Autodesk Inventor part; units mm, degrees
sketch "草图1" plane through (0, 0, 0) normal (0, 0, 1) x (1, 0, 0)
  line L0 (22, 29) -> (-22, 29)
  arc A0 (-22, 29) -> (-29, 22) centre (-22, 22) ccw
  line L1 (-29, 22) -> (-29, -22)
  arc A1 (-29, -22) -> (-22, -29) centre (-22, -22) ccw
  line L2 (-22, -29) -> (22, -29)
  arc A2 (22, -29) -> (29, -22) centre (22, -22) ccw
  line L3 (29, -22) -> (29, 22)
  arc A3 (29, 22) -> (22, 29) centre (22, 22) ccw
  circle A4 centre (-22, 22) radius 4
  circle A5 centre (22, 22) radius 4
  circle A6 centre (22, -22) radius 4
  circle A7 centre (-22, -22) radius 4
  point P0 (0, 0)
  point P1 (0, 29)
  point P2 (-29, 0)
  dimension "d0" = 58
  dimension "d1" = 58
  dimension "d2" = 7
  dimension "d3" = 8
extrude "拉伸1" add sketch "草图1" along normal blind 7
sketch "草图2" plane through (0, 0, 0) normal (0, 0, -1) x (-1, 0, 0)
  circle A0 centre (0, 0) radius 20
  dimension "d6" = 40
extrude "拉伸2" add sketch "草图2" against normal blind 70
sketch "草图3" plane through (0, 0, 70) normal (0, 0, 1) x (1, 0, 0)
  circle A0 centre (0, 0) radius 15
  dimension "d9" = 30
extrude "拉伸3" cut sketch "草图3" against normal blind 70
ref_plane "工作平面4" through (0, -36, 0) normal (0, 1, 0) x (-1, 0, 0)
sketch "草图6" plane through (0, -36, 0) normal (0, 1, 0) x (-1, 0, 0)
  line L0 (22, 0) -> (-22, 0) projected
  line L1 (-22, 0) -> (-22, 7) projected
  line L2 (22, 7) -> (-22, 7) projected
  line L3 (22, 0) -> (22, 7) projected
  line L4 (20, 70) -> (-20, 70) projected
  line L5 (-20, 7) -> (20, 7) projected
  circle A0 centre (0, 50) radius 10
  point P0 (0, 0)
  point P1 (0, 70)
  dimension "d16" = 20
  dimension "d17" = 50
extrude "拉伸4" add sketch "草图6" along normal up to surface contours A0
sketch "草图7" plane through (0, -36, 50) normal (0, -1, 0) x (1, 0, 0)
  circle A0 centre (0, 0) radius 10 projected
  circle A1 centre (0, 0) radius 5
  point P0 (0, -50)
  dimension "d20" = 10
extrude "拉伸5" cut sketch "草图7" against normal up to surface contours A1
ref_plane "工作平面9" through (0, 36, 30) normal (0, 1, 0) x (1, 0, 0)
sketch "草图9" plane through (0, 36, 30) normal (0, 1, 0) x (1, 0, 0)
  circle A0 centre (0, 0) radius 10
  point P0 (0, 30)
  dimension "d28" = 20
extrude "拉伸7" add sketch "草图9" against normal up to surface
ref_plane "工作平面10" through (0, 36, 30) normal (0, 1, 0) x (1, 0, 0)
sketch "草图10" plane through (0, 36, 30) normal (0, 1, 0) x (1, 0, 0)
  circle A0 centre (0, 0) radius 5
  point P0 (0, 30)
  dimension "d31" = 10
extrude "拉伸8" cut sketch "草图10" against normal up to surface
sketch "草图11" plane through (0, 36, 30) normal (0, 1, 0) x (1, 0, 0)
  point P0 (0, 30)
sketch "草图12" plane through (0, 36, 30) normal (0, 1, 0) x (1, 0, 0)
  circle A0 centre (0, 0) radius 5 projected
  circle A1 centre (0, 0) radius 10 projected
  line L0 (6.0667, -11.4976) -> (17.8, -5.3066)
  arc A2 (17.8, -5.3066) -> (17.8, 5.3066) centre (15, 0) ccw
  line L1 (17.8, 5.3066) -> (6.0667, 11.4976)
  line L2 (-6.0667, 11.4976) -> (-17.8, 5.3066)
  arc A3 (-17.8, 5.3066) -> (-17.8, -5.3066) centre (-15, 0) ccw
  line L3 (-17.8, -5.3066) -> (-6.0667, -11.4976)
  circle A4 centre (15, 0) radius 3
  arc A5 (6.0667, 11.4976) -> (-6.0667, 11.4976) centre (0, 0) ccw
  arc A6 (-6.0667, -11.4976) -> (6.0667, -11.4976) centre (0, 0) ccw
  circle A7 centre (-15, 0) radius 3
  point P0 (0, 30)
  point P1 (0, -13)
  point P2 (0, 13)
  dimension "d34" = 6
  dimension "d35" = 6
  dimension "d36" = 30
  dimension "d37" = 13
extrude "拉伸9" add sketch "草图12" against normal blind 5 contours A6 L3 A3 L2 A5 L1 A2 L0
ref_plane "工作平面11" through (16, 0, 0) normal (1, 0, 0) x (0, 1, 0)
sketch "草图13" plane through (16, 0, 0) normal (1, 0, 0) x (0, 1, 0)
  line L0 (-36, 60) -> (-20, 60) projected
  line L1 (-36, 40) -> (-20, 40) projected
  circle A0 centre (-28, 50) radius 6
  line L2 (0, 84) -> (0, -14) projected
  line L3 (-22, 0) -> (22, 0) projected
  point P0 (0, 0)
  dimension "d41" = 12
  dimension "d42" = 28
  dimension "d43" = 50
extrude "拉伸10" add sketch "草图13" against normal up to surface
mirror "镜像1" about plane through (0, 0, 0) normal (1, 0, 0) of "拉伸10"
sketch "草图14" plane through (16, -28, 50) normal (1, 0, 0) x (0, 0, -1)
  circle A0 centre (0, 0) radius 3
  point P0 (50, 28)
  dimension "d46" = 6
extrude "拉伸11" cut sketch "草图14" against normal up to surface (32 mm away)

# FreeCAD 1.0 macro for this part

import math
import FreeCAD as App
import Part
import Sketcher
from FreeCAD import Vector
Q = App.Units.Quantity

doc = App.newDocument("Part")
params = doc.addObject("Spreadsheet::Sheet", "Params")
for row, (alias, value) in enumerate([
    ("sketch1_diameter", "8 mm"),
    ("sketch1_radius", "7 mm"),
    ("sketch1_width", "44 mm"),
    ("pad1_length", "7 mm"),
    ("sketch2_diameter", "40 mm"),
    ("pad2_length", "70 mm"),
    ("sketch3_diameter", "30 mm"),
    ("pocket1_length", "70 mm"),
    ("sketch4_diameter", "20 mm"),
    ("sketch5_diameter", "10 mm"),
    ("pocket2_length", "21.8579 mm"),
    ("sketch6_diameter", "20 mm"),
    ("sketch7_diameter", "10 mm"),
    ("sketch8_diameter", "6 mm"),
    ("sketch8_radius", "13 mm"),
    ("sketch8_radius2", "6 mm"),
    ("sketch8_diameter2", "20 mm"),
    ("pad5_length", "5 mm"),
    ("sketch9_diameter", "12 mm"),
    ("sketch10_diameter", "6 mm"),
    ("pocket4_length", "32 mm"),
], start=1):
    params.set(f"A{row}", alias)
    params.set(f"B{row}", "=" + value)
    params.setAlias(f"B{row}", alias)

body = doc.addObject("PartDesign::Body", "Body")

# Sketch on XY plane
sketch1 = body.newObject("Sketcher::SketchObject", "Sketch")
sketch1.AttachmentSupport = (doc.getObject("XY_Plane"), [""])
sketch1.MapMode = "FlatFace"
sketch1.addGeometry([
    Part.ArcOfCircle(Part.Circle(Vector(22, 22, 0), Vector(0, 0, 1), 7), math.radians(0), math.radians(90)),  # 0
    Part.LineSegment(Vector(22, 29, 0), Vector(-22, 29, 0)),  # 1
    Part.ArcOfCircle(Part.Circle(Vector(-22, 22, 0), Vector(0, 0, 1), 7), math.radians(90), math.radians(180)),  # 2
    Part.LineSegment(Vector(-29, 22, 0), Vector(-29, -22, 0)),  # 3
    Part.ArcOfCircle(Part.Circle(Vector(-22, -22, 0), Vector(0, 0, 1), 7), math.radians(180), math.radians(270)),  # 4
    Part.LineSegment(Vector(-22, -29, 0), Vector(22, -29, 0)),  # 5
    Part.ArcOfCircle(Part.Circle(Vector(22, -22, 0), Vector(0, 0, 1), 7), math.radians(-90), math.radians(0)),  # 6
    Part.LineSegment(Vector(29, -22, 0), Vector(29, 22, 0)),  # 7
    Part.Circle(Vector(-22, -22, 0), Vector(0, 0, 1), 4),  # 8
    Part.Circle(Vector(22, -22, 0), Vector(0, 0, 1), 4),  # 9
    Part.Circle(Vector(-22, 22, 0), Vector(0, 0, 1), 4),  # 10
    Part.Circle(Vector(22, 22, 0), Vector(0, 0, 1), 4),  # 11
], False)
sketch1.addConstraint([
    Sketcher.Constraint("Tangent", 0, 2, 1, 1),
    Sketcher.Constraint("Tangent", 1, 2, 2, 1),
    Sketcher.Constraint("Tangent", 2, 2, 3, 1),
    Sketcher.Constraint("Tangent", 3, 2, 4, 1),
    Sketcher.Constraint("Tangent", 4, 2, 5, 1),
    Sketcher.Constraint("Tangent", 5, 2, 6, 1),
    Sketcher.Constraint("Tangent", 6, 2, 7, 1),
    Sketcher.Constraint("Tangent", 7, 2, 0, 1),
    Sketcher.Constraint("Horizontal", 1),
    Sketcher.Constraint("Vertical", 3),
    Sketcher.Constraint("Horizontal", 5),
    Sketcher.Constraint("Vertical", 7),
    Sketcher.Constraint("Coincident", 8, 3, 4, 3),
    Sketcher.Constraint("Coincident", 9, 3, 6, 3),
    Sketcher.Constraint("Coincident", 10, 3, 2, 3),
    Sketcher.Constraint("Coincident", 11, 3, 0, 3),
    Sketcher.Constraint("Equal", 0, 2),
    Sketcher.Constraint("Equal", 2, 4),
    Sketcher.Constraint("Equal", 4, 6),
    Sketcher.Constraint("Equal", 8, 9),
    Sketcher.Constraint("Equal", 9, 10),
    Sketcher.Constraint("Equal", 10, 11),
    Sketcher.Constraint("Symmetric", 0, 3, 4, 3, -1, 1),
    Sketcher.Constraint("Equal", 5, 3),
    Sketcher.Constraint("Diameter", 8, Q("8 mm")),
    Sketcher.Constraint("Radius", 0, Q("7 mm")),
    Sketcher.Constraint("DistanceX", 1, 2, 1, 1, Q("44 mm")),
])
sketch1.setExpression("Constraints[24]", "Params.sketch1_diameter")
sketch1.setExpression("Constraints[25]", "Params.sketch1_radius")
sketch1.setExpression("Constraints[26]", "Params.sketch1_width")
pad1 = body.newObject("PartDesign::Pad", "Pad")
pad1.Profile = sketch1
pad1.setExpression("Length", "Params.pad1_length")

# Sketch on XY plane
sketch2 = body.newObject("Sketcher::SketchObject", "Sketch001")
sketch2.AttachmentSupport = (doc.getObject("XY_Plane"), [""])
sketch2.MapMode = "FlatFace"
sketch2.addGeometry(Part.Circle(Vector(0, 0, 0), Vector(0, 0, 1), 20), False)
sketch2.addConstraint([
    Sketcher.Constraint("Coincident", 0, 3, -1, 1),
    Sketcher.Constraint("Diameter", 0, Q("40 mm")),
])
sketch2.setExpression("Constraints[1]", "Params.sketch2_diameter")
pad2 = body.newObject("PartDesign::Pad", "Pad001")
pad2.Profile = sketch2
pad2.setExpression("Length", "Params.pad2_length")

# Sketch on XY plane
sketch3 = body.newObject("Sketcher::SketchObject", "Sketch002")
sketch3.AttachmentSupport = (doc.getObject("XY_Plane"), [""])
sketch3.MapMode = "FlatFace"
sketch3.AttachmentOffset = App.Placement(Vector(0, 0, 70), App.Rotation())
sketch3.addGeometry(Part.Circle(Vector(0, 0, 0), Vector(0, 0, 1), 15), False)
sketch3.addConstraint([
    Sketcher.Constraint("Coincident", 0, 3, -1, 1),
    Sketcher.Constraint("Diameter", 0, Q("30 mm")),
])
sketch3.setExpression("Constraints[1]", "Params.sketch3_diameter")
pocket1 = body.newObject("PartDesign::Pocket", "Pocket")
pocket1.Profile = sketch3
pocket1.setExpression("Length", "Params.pocket1_length")

# Sketch on XZ plane
sketch4 = body.newObject("Sketcher::SketchObject", "Sketch003")
sketch4.AttachmentSupport = (doc.getObject("XZ_Plane"), [""])
sketch4.MapMode = "FlatFace"
sketch4.AttachmentOffset = App.Placement(Vector(0, 0, 36), App.Rotation())
sketch4.addGeometry(Part.Circle(Vector(0, 50, 0), Vector(0, 0, 1), 10), False)
sketch4.addConstraint([
    Sketcher.Constraint("PointOnObject", 0, 3, -2),
    Sketcher.Constraint("Diameter", 0, Q("20 mm")),
    Sketcher.Constraint("DistanceY", -1, 1, 0, 3, Q("50 mm")),
])
sketch4.setExpression("Constraints[1]", "Params.sketch4_diameter")
pad3 = body.newObject("PartDesign::Pad", "Pad002")
pad3.Profile = sketch4
pad3.Type = "UpToFirst"
pad3.Reversed = True

# Sketch on XZ plane
sketch5 = body.newObject("Sketcher::SketchObject", "Sketch004")
sketch5.AttachmentSupport = (doc.getObject("XZ_Plane"), [""])
sketch5.MapMode = "FlatFace"
sketch5.AttachmentOffset = App.Placement(Vector(0, 0, 36), App.Rotation())
sketch5.addGeometry(Part.Circle(Vector(0, 50, 0), Vector(0, 0, 1), 5), False)
sketch5.addConstraint([
    Sketcher.Constraint("PointOnObject", 0, 3, -2),
    Sketcher.Constraint("Diameter", 0, Q("10 mm")),
    Sketcher.Constraint("DistanceY", -1, 1, 0, 3, Q("50 mm")),
])
sketch5.setExpression("Constraints[1]", "Params.sketch5_diameter")
pocket2 = body.newObject("PartDesign::Pocket", "Pocket001")
pocket2.Profile = sketch5
pocket2.setExpression("Length", "Params.pocket2_length")

# Sketch on XZ plane
sketch6 = body.newObject("Sketcher::SketchObject", "Sketch005")
sketch6.AttachmentSupport = (doc.getObject("XZ_Plane"), [""])
sketch6.MapMode = "FlatFace"
sketch6.AttachmentOffset = App.Placement(Vector(0, 0, -36), App.Rotation())
sketch6.addGeometry(Part.Circle(Vector(0, 30, 0), Vector(0, 0, 1), 10), False)
sketch6.addConstraint([
    Sketcher.Constraint("PointOnObject", 0, 3, -2),
    Sketcher.Constraint("Diameter", 0, Q("20 mm")),
    Sketcher.Constraint("DistanceY", -1, 1, 0, 3, Q("30 mm")),
])
sketch6.setExpression("Constraints[1]", "Params.sketch6_diameter")
pad4 = body.newObject("PartDesign::Pad", "Pad003")
pad4.Profile = sketch6
pad4.Type = "UpToFirst"

# Sketch on XZ plane
sketch7 = body.newObject("Sketcher::SketchObject", "Sketch006")
sketch7.AttachmentSupport = (doc.getObject("XZ_Plane"), [""])
sketch7.MapMode = "FlatFace"
sketch7.AttachmentOffset = App.Placement(Vector(0, 0, -36), App.Rotation())
sketch7.addGeometry(Part.Circle(Vector(0, 30, 0), Vector(0, 0, 1), 5), False)
sketch7.addConstraint([
    Sketcher.Constraint("PointOnObject", 0, 3, -2),
    Sketcher.Constraint("Diameter", 0, Q("10 mm")),
    Sketcher.Constraint("DistanceY", -1, 1, 0, 3, Q("30 mm")),
])
sketch7.setExpression("Constraints[1]", "Params.sketch7_diameter")
pocket3 = body.newObject("PartDesign::Pocket", "Pocket002")
pocket3.Profile = sketch7
pocket3.Type = "UpToFirst"
pocket3.Reversed = True

# Sketch on XZ plane
sketch8 = body.newObject("Sketcher::SketchObject", "Sketch007")
sketch8.AttachmentSupport = (doc.getObject("XZ_Plane"), [""])
sketch8.MapMode = "FlatFace"
sketch8.AttachmentOffset = App.Placement(Vector(0, 0, -36), App.Rotation())
sketch8.addGeometry([
    Part.ArcOfCircle(Part.Circle(Vector(0, 30, 0), Vector(0, 0, 1), 12.999987), math.radians(62.181664), math.radians(117.818336)),  # 0
    Part.LineSegment(Vector(6.0667, 41.4976, 0), Vector(17.8, 35.3066, 0)),  # 1
    Part.ArcOfCircle(Part.Circle(Vector(15, 30, 0), Vector(0, 0, 1), 6), math.radians(-62.181862), math.radians(62.181862)),  # 2
    Part.LineSegment(Vector(17.8, 24.6934, 0), Vector(6.0667, 18.5024, 0)),  # 3
    Part.ArcOfCircle(Part.Circle(Vector(0, 30, 0), Vector(0, 0, 1), 12.999987), math.radians(-117.818336), math.radians(-62.181664)),  # 4
    Part.LineSegment(Vector(-6.0667, 18.5024, 0), Vector(-17.8, 24.6934, 0)),  # 5
    Part.ArcOfCircle(Part.Circle(Vector(-15, 30, 0), Vector(0, 0, 1), 6), math.radians(117.818138), math.radians(242.181862)),  # 6
    Part.LineSegment(Vector(-17.8, 35.3066, 0), Vector(-6.0667, 41.4976, 0)),  # 7
    Part.Circle(Vector(-15, 30, 0), Vector(0, 0, 1), 3),  # 8
    Part.Circle(Vector(0, 30, 0), Vector(0, 0, 1), 10),  # 9
    Part.Circle(Vector(15, 30, 0), Vector(0, 0, 1), 3),  # 10
], False)
sketch8.addConstraint([
    Sketcher.Constraint("Tangent", 0, 1, 1, 1),
    Sketcher.Constraint("Tangent", 1, 2, 2, 2),
    Sketcher.Constraint("Tangent", 2, 1, 3, 1),
    Sketcher.Constraint("Tangent", 3, 2, 4, 2),
    Sketcher.Constraint("Tangent", 4, 1, 5, 1),
    Sketcher.Constraint("Tangent", 5, 2, 6, 2),
    Sketcher.Constraint("Tangent", 6, 1, 7, 1),
    Sketcher.Constraint("Tangent", 7, 2, 0, 2),
    Sketcher.Constraint("Coincident", 4, 3, 0, 3),
    Sketcher.Constraint("Coincident", 8, 3, 6, 3),
    Sketcher.Constraint("Coincident", 9, 3, 0, 3),
    Sketcher.Constraint("Coincident", 10, 3, 2, 3),
    Sketcher.Constraint("Equal", 0, 4),
    Sketcher.Constraint("Equal", 2, 6),
    Sketcher.Constraint("Equal", 8, 10),
    Sketcher.Constraint("Symmetric", 2, 3, 6, 3, -2),
    Sketcher.Constraint("PointOnObject", 0, 3, -2),
    Sketcher.Constraint("Parallel", 1, 5),
    Sketcher.Constraint("Diameter", 8, Q("6 mm")),
    Sketcher.Constraint("Radius", 0, Q("13 mm")),
    Sketcher.Constraint("Radius", 2, Q("6 mm")),
    Sketcher.Constraint("Diameter", 9, Q("20 mm")),
    Sketcher.Constraint("DistanceY", -1, 1, 0, 3, Q("30 mm")),
    Sketcher.Constraint("DistanceX", 6, 3, 2, 3, Q("30 mm")),
])
sketch8.setExpression("Constraints[18]", "Params.sketch8_diameter")
sketch8.setExpression("Constraints[19]", "Params.sketch8_radius")
sketch8.setExpression("Constraints[20]", "Params.sketch8_radius2")
sketch8.setExpression("Constraints[21]", "Params.sketch8_diameter2")
pad5 = body.newObject("PartDesign::Pad", "Pad004")
pad5.Profile = sketch8
pad5.setExpression("Length", "Params.pad5_length")

# Sketch on YZ plane
sketch9 = body.newObject("Sketcher::SketchObject", "Sketch008")
sketch9.AttachmentSupport = (doc.getObject("YZ_Plane"), [""])
sketch9.MapMode = "FlatFace"
sketch9.AttachmentOffset = App.Placement(Vector(0, 0, 16), App.Rotation())
sketch9.addGeometry(Part.Circle(Vector(-28, 50, 0), Vector(0, 0, 1), 6), False)
sketch9.addConstraint([
    Sketcher.Constraint("Diameter", 0, Q("12 mm")),
    Sketcher.Constraint("DistanceX", 0, 3, -1, 1, Q("28 mm")),
    Sketcher.Constraint("DistanceY", -1, 1, 0, 3, Q("50 mm")),
])
sketch9.setExpression("Constraints[0]", "Params.sketch9_diameter")
pad6 = body.newObject("PartDesign::Pad", "Pad005")
pad6.Profile = sketch9
pad6.Type = "UpToFirst"
pad6.Reversed = True
doc.recompute()

mirrored = body.newObject("PartDesign::Mirrored", "Mirrored")
mirrored.Originals = [pad6]
mirrored.MirrorPlane = (doc.getObject("YZ_Plane"), [""])
body.Tip = mirrored

# Sketch on YZ plane
sketch10 = body.newObject("Sketcher::SketchObject", "Sketch009")
sketch10.AttachmentSupport = (doc.getObject("YZ_Plane"), [""])
sketch10.MapMode = "FlatFace"
sketch10.AttachmentOffset = App.Placement(Vector(0, 0, 16), App.Rotation())
sketch10.addGeometry(Part.Circle(Vector(-28, 50, 0), Vector(0, 0, 1), 3), False)
sketch10.addConstraint([
    Sketcher.Constraint("Diameter", 0, Q("6 mm")),
    Sketcher.Constraint("DistanceX", 0, 3, -1, 1, Q("28 mm")),
    Sketcher.Constraint("DistanceY", -1, 1, 0, 3, Q("50 mm")),
])
sketch10.setExpression("Constraints[0]", "Params.sketch10_diameter")
pocket4 = body.newObject("PartDesign::Pocket", "Pocket003")
pocket4.Profile = sketch10
pocket4.setExpression("Length", "Params.pocket4_length")

doc.recompute()
